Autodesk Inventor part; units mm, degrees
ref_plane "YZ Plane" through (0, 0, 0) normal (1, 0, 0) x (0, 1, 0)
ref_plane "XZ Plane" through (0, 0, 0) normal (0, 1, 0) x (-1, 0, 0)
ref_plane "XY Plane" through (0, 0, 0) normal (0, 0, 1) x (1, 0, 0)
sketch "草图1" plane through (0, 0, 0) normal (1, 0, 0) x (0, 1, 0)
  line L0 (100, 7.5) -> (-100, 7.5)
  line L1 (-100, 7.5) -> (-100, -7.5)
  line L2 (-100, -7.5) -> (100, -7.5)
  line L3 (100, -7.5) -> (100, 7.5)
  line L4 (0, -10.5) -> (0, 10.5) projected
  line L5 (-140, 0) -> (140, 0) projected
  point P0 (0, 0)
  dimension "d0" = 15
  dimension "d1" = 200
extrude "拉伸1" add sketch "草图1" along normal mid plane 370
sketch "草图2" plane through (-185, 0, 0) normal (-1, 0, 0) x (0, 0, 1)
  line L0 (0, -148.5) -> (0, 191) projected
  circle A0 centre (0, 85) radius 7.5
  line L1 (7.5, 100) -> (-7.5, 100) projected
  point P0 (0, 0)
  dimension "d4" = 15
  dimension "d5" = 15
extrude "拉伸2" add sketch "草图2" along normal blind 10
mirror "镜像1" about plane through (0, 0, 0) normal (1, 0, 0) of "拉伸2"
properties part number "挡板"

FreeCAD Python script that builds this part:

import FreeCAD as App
import Part
import Sketcher
from FreeCAD import Vector

doc = App.newDocument("Part")
body = doc.addObject("PartDesign::Body", "Body")

# Sketch on YZ plane
sketch1 = doc.addObject("Sketcher::SketchObject", "Sketch")
body.addObject(sketch1)
sketch1.AttachmentSupport = (doc.YZ_Plane, [""])
sketch1.MapMode = "FlatFace"
sketch1.addGeometry([
    Part.LineSegment(Vector(100, 8, 0), Vector(-100, 8, 0)),
    Part.LineSegment(Vector(-100, 8, 0), Vector(-100, -8, 0)),
    Part.LineSegment(Vector(-100, -8, 0), Vector(100, -8, 0)),
    Part.LineSegment(Vector(100, -8, 0), Vector(100, 8, 0)),
], False)
sketch1.addConstraint([
    Sketcher.Constraint("Coincident", 0, 2, 1, 1),
    Sketcher.Constraint("Coincident", 1, 2, 2, 1),
    Sketcher.Constraint("Coincident", 2, 2, 3, 1),
    Sketcher.Constraint("Coincident", 3, 2, 0, 1),
    Sketcher.Constraint("Horizontal", 0),
    Sketcher.Constraint("Vertical", 1),
    Sketcher.Constraint("Horizontal", 2),
    Sketcher.Constraint("Vertical", 3),
    Sketcher.Constraint("Symmetric", 0, 2, 2, 2, -1, 1),
    Sketcher.Constraint("DistanceX", 0, 2, 0, 1, 200.0),
    Sketcher.Constraint("DistanceY", 1, 2, 1, 1, 15.0),
])
pad1 = doc.addObject("PartDesign::Pad", "Pad")
body.addObject(pad1)
pad1.Profile = sketch1
pad1.Length = 370
pad1.Midplane = True

# Sketch on YZ plane
sketch2 = doc.addObject("Sketcher::SketchObject", "Sketch001")
body.addObject(sketch2)
sketch2.AttachmentSupport = (doc.YZ_Plane, [""])
sketch2.MapMode = "FlatFace"
sketch2.AttachmentOffset = App.Placement(Vector(0, 0, -185), App.Rotation())
sketch2.addGeometry(Part.Circle(Vector(85, 0, 0), Vector(0, 0, 1), 8), False)
sketch2.addConstraint([
    Sketcher.Constraint("PointOnObject", 0, 3, -1),
    Sketcher.Constraint("Diameter", 0, 15.0),
    Sketcher.Constraint("DistanceX", -1, 1, 0, 3, 85.0),
])
pad2 = doc.addObject("PartDesign::Pad", "Pad001")
body.addObject(pad2)
pad2.Profile = sketch2
pad2.Length = 10
pad2.Reversed = True
doc.recompute()

mirrored = doc.addObject("PartDesign::Mirrored", "Mirrored")
body.addObject(mirrored)
mirrored.Originals = [pad2]
mirrored.MirrorPlane = (doc.YZ_Plane, [""])
body.Tip = mirrored

doc.recompute()
